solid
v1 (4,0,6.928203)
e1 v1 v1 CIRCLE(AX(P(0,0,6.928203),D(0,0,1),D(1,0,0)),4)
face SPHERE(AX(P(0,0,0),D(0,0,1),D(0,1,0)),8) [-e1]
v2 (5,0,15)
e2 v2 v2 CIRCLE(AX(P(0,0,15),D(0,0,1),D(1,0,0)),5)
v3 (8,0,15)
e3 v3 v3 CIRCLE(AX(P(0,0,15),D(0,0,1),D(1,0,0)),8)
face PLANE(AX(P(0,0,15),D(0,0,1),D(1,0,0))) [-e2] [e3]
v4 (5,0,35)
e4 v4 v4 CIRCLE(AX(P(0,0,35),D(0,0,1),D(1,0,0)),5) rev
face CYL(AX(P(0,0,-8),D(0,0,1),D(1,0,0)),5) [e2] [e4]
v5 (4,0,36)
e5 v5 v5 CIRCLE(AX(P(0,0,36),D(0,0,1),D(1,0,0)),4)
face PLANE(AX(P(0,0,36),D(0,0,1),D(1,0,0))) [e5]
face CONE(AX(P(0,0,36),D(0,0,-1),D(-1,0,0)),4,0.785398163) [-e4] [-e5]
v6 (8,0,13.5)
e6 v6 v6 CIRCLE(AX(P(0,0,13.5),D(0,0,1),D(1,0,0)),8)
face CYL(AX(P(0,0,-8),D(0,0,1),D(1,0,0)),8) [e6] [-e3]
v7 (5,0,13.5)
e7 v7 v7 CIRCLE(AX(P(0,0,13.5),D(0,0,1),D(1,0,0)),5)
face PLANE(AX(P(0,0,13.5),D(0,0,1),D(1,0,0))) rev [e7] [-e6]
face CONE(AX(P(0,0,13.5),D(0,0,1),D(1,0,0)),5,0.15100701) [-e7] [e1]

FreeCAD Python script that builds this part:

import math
import FreeCAD as App
import Part
import Sketcher
from FreeCAD import Vector
Q = App.Units.Quantity


def edges_at(feature, points):
    """Names of the edges that pass closest to the given points."""
    edges = feature.Shape.Edges
    near = lambda p: min(range(len(edges)), key=lambda i: edges[i].distToShape(Part.Vertex(*p))[0])
    return sorted({f"Edge{near(p) + 1}" for p in points})

doc = App.newDocument("Part")
body = doc.addObject("PartDesign::Body", "Body")

sketch1 = body.newObject("Sketcher::SketchObject", "Sketch")
sketch1.AttachmentSupport = (doc.getObject("YZ_Plane"), [""])
sketch1.MapMode = "FlatFace"
sketch1.addGeometry([
    Part.ArcOfCircle(Part.Circle(Vector(0, 0, 0), Vector(0, 0, 1), 8), math.radians(-90), math.radians(60)),
    Part.LineSegment(Vector(4, 6.9, 0), Vector(5, 13.5, 0)),
    Part.LineSegment(Vector(5, 13.5, 0), Vector(8, 13.5, 0)),
    Part.LineSegment(Vector(8, 13.5, 0), Vector(8, 15, 0)),
    Part.LineSegment(Vector(8, 15, 0), Vector(5, 15, 0)),
    Part.LineSegment(Vector(5, 15, 0), Vector(5, 36, 0)),
    Part.LineSegment(Vector(5, 36, 0), Vector(0, 36, 0)),
    Part.LineSegment(Vector(0, 36, 0), Vector(0, -8, 0)),
], False)
sketch1.addConstraint([
    Sketcher.Constraint("Coincident", 0, 2, 1, 1),
    Sketcher.Constraint("Coincident", 1, 2, 2, 1),
    Sketcher.Constraint("Coincident", 2, 2, 3, 1),
    Sketcher.Constraint("Coincident", 3, 2, 4, 1),
    Sketcher.Constraint("Coincident", 4, 2, 5, 1),
    Sketcher.Constraint("Coincident", 5, 2, 6, 1),
    Sketcher.Constraint("Coincident", 6, 2, 7, 1),
    Sketcher.Constraint("Coincident", 7, 2, 0, 1),
    Sketcher.Constraint("Horizontal", 2),
    Sketcher.Constraint("Vertical", 3),
    Sketcher.Constraint("Horizontal", 4),
    Sketcher.Constraint("Vertical", 5),
    Sketcher.Constraint("Horizontal", 6),
    Sketcher.Constraint("Vertical", 7),
    Sketcher.Constraint("Coincident", 0, 3, -1, 1),
    Sketcher.Constraint("PointOnObject", 6, 2, -2),
    Sketcher.Constraint("Vertical", 1, 2, 4, 2),
    Sketcher.Constraint("Radius", 0, Q("8 mm")),
    Sketcher.Constraint("DistanceX", 2, 1, 2, 2, Q("3 mm")),
    Sketcher.Constraint("DistanceX", 6, 2, 6, 1, Q("5 mm")),
    Sketcher.Constraint("DistanceY", 5, 1, 5, 2, Q("21 mm")),
    Sketcher.Constraint("DistanceY", 7, 2, 7, 1, Q("44 mm")),
    Sketcher.Constraint("DistanceY", 3, 1, 3, 2, Q("1.5 mm")),
    Sketcher.Constraint("DistanceX", -1, 1, 0, 2, Q("4 mm")),
])
revolution = body.newObject("PartDesign::Revolution", "Revolution")
revolution.Profile = sketch1
revolution.ReferenceAxis = (sketch1, ["V_Axis"])
revolution.Angle = 360
doc.recompute()

chamfer = body.newObject("PartDesign::Chamfer", "Chamfer")
chamfer.Base = (revolution, edges_at(revolution, [(0, -5, 36)]))
chamfer.Size = 1

doc.recompute()
